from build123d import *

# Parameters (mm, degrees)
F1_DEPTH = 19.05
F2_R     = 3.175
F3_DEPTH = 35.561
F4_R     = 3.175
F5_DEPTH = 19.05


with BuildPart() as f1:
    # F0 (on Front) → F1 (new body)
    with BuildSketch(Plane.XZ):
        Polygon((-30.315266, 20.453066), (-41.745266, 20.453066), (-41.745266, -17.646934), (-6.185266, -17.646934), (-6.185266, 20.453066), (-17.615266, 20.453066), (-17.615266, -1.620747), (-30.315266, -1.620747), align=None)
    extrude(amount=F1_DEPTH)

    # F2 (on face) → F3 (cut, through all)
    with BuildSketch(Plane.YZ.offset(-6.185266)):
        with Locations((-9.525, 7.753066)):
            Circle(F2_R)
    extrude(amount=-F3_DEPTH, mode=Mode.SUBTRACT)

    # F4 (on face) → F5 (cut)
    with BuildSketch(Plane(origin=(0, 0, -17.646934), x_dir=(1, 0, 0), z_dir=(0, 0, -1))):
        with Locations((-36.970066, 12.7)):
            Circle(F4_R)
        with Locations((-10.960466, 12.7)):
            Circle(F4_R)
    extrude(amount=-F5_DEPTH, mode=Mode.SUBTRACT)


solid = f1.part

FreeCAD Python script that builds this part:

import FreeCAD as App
import Part
import Sketcher

V = App.Vector
Q = App.Units.Quantity


def add_polygon(sketch, points):
    """Adds a closed chain of lines whose ends are joined by coincident constraints."""
    first, n = sketch.GeometryCount, len(points)
    for a, b in zip(points, points[1:] + points[:1]):
        sketch.addGeometry(Part.LineSegment(App.Vector(*a, 0), App.Vector(*b, 0)), False)
    for i in range(n):
        sketch.addConstraint(Sketcher.Constraint("Coincident", first + i, 2, first + (i + 1) % n, 1))

doc = App.newDocument("Part")
body = doc.addObject("PartDesign::Body", "Body")

sketch1 = body.newObject("Sketcher::SketchObject", "Sketch")
sketch1.AttachmentSupport = (doc.getObject("XZ_Plane"), [""])
sketch1.MapMode = "FlatFace"
add_polygon(sketch1, [(-30, 20), (-42, 20), (-42, -18), (-6, -18), (-6, 20), (-18, 20), (-18, -2), (-30, -2)])
sketch1.addConstraint([
    Sketcher.Constraint("Horizontal", 0),
    Sketcher.Constraint("Vertical", 1),
    Sketcher.Constraint("Horizontal", 2),
    Sketcher.Constraint("Vertical", 3),
    Sketcher.Constraint("Horizontal", 4),
    Sketcher.Constraint("Vertical", 5),
    Sketcher.Constraint("Horizontal", 6),
    Sketcher.Constraint("Vertical", 7),
    Sketcher.Constraint("Horizontal", 0, 2, 3, 2),
    Sketcher.Constraint("Equal", 0, 4),
    Sketcher.Constraint("DistanceX", 2, 1, 2, 2, Q("1.4 in")),
    Sketcher.Constraint("DistanceX", 6, 2, 6, 1, Q("0.5 in")),
    Sketcher.Constraint("DistanceY", 1, 2, 1, 1, Q("1.5 in")),
    Sketcher.Constraint("DistanceY", 5, 2, 5, 1, Q("22.073813 mm")),
    Sketcher.Constraint("DistanceX", 0, 2, -1, 1, Q("41.745266 mm")),
    Sketcher.Constraint("DistanceY", -1, 1, 0, 2, Q("20.453066 mm")),
])
pad1 = body.newObject("PartDesign::Pad", "Pad")
pad1.Profile = sketch1
pad1.Length = Q("0.75 in")

sketch2 = body.newObject("Sketcher::SketchObject", "Sketch001")
sketch2.AttachmentSupport = (doc.getObject("YZ_Plane"), [""])
sketch2.MapMode = "FlatFace"
sketch2.AttachmentOffset = App.Placement(V(0, 0, -6.185266), App.Rotation())
sketch2.addGeometry(Part.Circle(V(-9.5, 7.8, 0), V(0, 0, 1), 3.2), False)
sketch2.addConstraint([
    Sketcher.Constraint("Diameter", 0, Q("0.25 in")),
    Sketcher.Constraint("DistanceX", 0, 3, -1, 1, Q("0.375 in")),
    Sketcher.Constraint("DistanceY", -1, 1, 0, 3, Q("7.753066 mm")),
])
pocket1 = body.newObject("PartDesign::Pocket", "Pocket")
pocket1.Profile = sketch2
pocket1.Type = "ThroughAll"

sketch3 = body.newObject("Sketcher::SketchObject", "Sketch002")
sketch3.AttachmentSupport = (doc.getObject("XY_Plane"), [""])
sketch3.MapMode = "FlatFace"
sketch3.AttachmentOffset = App.Placement(V(0, 0, -17.646934), App.Rotation())
sketch3.addGeometry([
    Part.Circle(V(-37, -12.7, 0), V(0, 0, 1), 3.2),
    Part.Circle(V(-11, -12.7, 0), V(0, 0, 1), 3.2),
], False)
sketch3.addConstraint([
    Sketcher.Constraint("Equal", 0, 1),
    Sketcher.Constraint("Horizontal", 0, 3, 1, 3),
    Sketcher.Constraint("Diameter", 0, Q("0.25 in")),
    Sketcher.Constraint("DistanceY", 0, 3, -1, 1, Q("0.5 in")),
    Sketcher.Constraint("DistanceX", 0, 3, 1, 3, Q("1.024 in")),
    Sketcher.Constraint("DistanceX", 0, 3, -1, 1, Q("36.970066 mm")),
])
pocket2 = body.newObject("PartDesign::Pocket", "Pocket001")
pocket2.Profile = sketch3
pocket2.Length = Q("0.75 in")
pocket2.Reversed = True

doc.recompute()
